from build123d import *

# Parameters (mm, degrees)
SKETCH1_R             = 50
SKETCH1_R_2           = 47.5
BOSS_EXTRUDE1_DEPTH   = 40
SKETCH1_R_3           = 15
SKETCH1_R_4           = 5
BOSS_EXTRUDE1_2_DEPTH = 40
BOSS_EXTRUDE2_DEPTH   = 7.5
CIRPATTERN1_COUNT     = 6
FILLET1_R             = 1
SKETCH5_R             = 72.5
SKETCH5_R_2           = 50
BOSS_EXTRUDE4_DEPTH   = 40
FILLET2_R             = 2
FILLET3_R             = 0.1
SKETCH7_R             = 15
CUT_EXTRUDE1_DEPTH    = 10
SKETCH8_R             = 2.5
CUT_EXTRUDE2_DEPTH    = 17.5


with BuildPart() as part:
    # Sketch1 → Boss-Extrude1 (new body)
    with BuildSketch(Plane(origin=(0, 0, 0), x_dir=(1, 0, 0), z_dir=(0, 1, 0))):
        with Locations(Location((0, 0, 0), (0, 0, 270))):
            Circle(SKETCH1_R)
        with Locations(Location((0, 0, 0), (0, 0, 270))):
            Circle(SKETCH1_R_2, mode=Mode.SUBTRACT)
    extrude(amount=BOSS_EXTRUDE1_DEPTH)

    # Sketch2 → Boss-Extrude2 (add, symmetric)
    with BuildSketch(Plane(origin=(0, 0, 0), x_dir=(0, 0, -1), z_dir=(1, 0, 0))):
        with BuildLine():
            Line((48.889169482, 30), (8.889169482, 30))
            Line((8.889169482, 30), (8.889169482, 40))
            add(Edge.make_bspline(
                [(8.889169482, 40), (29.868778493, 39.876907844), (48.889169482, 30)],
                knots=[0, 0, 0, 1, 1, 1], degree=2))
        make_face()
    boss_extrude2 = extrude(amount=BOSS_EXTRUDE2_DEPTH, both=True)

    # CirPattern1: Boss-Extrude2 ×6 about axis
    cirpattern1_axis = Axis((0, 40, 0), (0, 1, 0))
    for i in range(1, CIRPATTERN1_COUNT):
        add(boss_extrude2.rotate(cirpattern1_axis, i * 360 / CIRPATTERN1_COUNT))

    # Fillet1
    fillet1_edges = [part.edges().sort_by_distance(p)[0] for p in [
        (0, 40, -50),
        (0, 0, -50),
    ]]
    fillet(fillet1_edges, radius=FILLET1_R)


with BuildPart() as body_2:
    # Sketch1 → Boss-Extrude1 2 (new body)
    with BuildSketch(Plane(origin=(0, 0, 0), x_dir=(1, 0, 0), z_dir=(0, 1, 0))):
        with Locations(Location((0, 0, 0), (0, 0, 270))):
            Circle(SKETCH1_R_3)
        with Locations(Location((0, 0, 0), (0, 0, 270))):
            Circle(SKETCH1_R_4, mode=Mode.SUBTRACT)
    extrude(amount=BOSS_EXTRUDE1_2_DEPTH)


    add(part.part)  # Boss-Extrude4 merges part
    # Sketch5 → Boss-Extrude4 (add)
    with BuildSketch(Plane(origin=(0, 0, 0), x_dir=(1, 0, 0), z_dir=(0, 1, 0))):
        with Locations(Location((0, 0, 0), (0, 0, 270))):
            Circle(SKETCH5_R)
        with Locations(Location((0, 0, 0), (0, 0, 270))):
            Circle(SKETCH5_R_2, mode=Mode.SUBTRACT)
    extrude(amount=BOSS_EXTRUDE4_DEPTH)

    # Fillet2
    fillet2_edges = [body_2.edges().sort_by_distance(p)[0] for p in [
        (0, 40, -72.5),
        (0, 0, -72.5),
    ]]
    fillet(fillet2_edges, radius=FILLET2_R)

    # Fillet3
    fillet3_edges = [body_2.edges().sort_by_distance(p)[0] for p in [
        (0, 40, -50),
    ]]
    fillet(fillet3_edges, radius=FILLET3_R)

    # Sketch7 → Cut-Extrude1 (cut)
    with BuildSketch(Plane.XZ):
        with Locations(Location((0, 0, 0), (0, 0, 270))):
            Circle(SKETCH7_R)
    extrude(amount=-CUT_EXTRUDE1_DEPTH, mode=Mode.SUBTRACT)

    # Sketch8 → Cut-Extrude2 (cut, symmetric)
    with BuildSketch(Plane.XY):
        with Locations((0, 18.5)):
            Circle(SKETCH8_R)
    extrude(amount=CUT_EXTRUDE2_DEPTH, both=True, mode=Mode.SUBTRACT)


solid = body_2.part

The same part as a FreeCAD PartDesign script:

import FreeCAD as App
import Part
import Sketcher


def edges_at(feature, points):
    """Names of the edges that pass closest to the given points."""
    edges = feature.Shape.Edges
    near = lambda p: min(range(len(edges)), key=lambda i: edges[i].distToShape(Part.Vertex(*p))[0])
    return sorted({f"Edge{near(p) + 1}" for p in points})

doc = App.newDocument("Part")
body = doc.addObject("PartDesign::Body", "Body")

# Sketch on XZ plane
sketch1 = doc.addObject("Sketcher::SketchObject", "Sketch")
body.addObject(sketch1)
sketch1.AttachmentSupport = (doc.XZ_Plane, [""])
sketch1.MapMode = "FlatFace"
sketch1.addGeometry([
    Part.Circle(App.Vector(0, 0, 0), App.Vector(0, 0, 1), 50),
    Part.Circle(App.Vector(0, 0, 0), App.Vector(0, 0, 1), 48),
], False)
sketch1.addConstraint([
    Sketcher.Constraint("Coincident", 0, 3, -1, 1),
    Sketcher.Constraint("Coincident", 1, 3, -1, 1),
    Sketcher.Constraint("Diameter", 0, 100.0),
    Sketcher.Constraint("Diameter", 1, 95.0),
])
pad1 = doc.addObject("PartDesign::Pad", "Pad")
body.addObject(pad1)
pad1.Profile = sketch1
pad1.Length = 40
pad1.Reversed = True

# Sketch on YZ plane
sketch2 = doc.addObject("Sketcher::SketchObject", "Sketch001")
body.addObject(sketch2)
sketch2.AttachmentSupport = (doc.YZ_Plane, [""])
sketch2.MapMode = "FlatFace"
sketch2.addGeometry([
    Part.LineSegment(App.Vector(30, -8.889169, 0), App.Vector(30, -48.889169, 0)),
    Part.BSplineCurve([App.Vector(40, -8.889169, 0), App.Vector(39.876908, -29.868778, 0), App.Vector(30, -48.889169, 0)], [3, 3], [0, 1], False, 2, [1, 1, 1], False),
    Part.LineSegment(App.Vector(40, -8.889169, 0), App.Vector(30, -8.889169, 0)),
], False)
sketch2.addConstraint([
    Sketcher.Constraint("Block", 1),
    Sketcher.Constraint("Coincident", 0, 2, 1, 2),
    Sketcher.Constraint("Coincident", 1, 1, 2, 1),
    Sketcher.Constraint("Coincident", 2, 2, 0, 1),
    Sketcher.Constraint("Vertical", 0),
    Sketcher.Constraint("Horizontal", 2),
])
pad2 = doc.addObject("PartDesign::Pad", "Pad001")
body.addObject(pad2)
pad2.Profile = sketch2
pad2.Length = 15
pad2.Midplane = True
doc.recompute()

polarpattern = doc.addObject("PartDesign::PolarPattern", "PolarPattern")
body.addObject(polarpattern)
polarpattern.Originals = [pad2]
polarpattern.Axis = (doc.Y_Axis, [""])
polarpattern.Angle = 360
polarpattern.Occurrences = 6
body.Tip = polarpattern
doc.recompute()

fillet = doc.addObject("PartDesign::Fillet", "Fillet")
body.addObject(fillet)
fillet.Base = (polarpattern, edges_at(polarpattern, [(0, 40, -50), (0, 0, -50)]))
fillet.Radius = 1
body2 = doc.addObject("PartDesign::Body", "Body001")

# Sketch on XZ plane
sketch3 = doc.addObject("Sketcher::SketchObject", "Sketch002")
body2.addObject(sketch3)
sketch3.AttachmentSupport = (doc.getObject("XZ_Plane001"), [""])
sketch3.MapMode = "FlatFace"
sketch3.addGeometry([
    Part.Circle(App.Vector(0, 0, 0), App.Vector(0, 0, 1), 15),
    Part.Circle(App.Vector(0, 0, 0), App.Vector(0, 0, 1), 5),
], False)
sketch3.addConstraint([
    Sketcher.Constraint("Coincident", 0, 3, -1, 1),
    Sketcher.Constraint("Coincident", 1, 3, -1, 1),
    Sketcher.Constraint("Diameter", 0, 30.0),
    Sketcher.Constraint("Diameter", 1, 10.0),
])
pad3 = doc.addObject("PartDesign::Pad", "Pad002")
body2.addObject(pad3)
pad3.Profile = sketch3
pad3.Length = 40
pad3.Reversed = True
doc.recompute()

boolean = doc.addObject("PartDesign::Boolean", "Boolean")
body2.addObject(boolean)
boolean.Type = "Fuse"
boolean.addObjects([body])

# Sketch on XZ plane
sketch4 = doc.addObject("Sketcher::SketchObject", "Sketch003")
body2.addObject(sketch4)
sketch4.AttachmentSupport = (doc.getObject("XZ_Plane001"), [""])
sketch4.MapMode = "FlatFace"
sketch4.addGeometry([
    Part.Circle(App.Vector(0, 0, 0), App.Vector(0, 0, 1), 72),
    Part.Circle(App.Vector(0, 0, 0), App.Vector(0, 0, 1), 50),
], False)
sketch4.addConstraint([
    Sketcher.Constraint("Coincident", 0, 3, -1, 1),
    Sketcher.Constraint("Coincident", 1, 3, -1, 1),
    Sketcher.Constraint("Diameter", 0, 145.0),
    Sketcher.Constraint("Diameter", 1, 100.0),
])
pad4 = doc.addObject("PartDesign::Pad", "Pad003")
body2.addObject(pad4)
pad4.Profile = sketch4
pad4.Length = 40
pad4.Reversed = True
doc.recompute()

fillet2 = doc.addObject("PartDesign::Fillet", "Fillet001")
body2.addObject(fillet2)
fillet2.Base = (pad4, edges_at(pad4, [(0, 40, -72.5), (0, 0, -72.5)]))
fillet2.Radius = 2
doc.recompute()

fillet3 = doc.addObject("PartDesign::Fillet", "Fillet002")
body2.addObject(fillet3)
fillet3.Base = (fillet2, edges_at(fillet2, [(0, 40, -50)]))
fillet3.Radius = 0.1

# Sketch on XZ plane
sketch5 = doc.addObject("Sketcher::SketchObject", "Sketch004")
body2.addObject(sketch5)
sketch5.AttachmentSupport = (doc.getObject("XZ_Plane001"), [""])
sketch5.MapMode = "FlatFace"
sketch5.addGeometry(Part.Circle(App.Vector(0, 0, 0), App.Vector(0, 0, 1), 15), False)
sketch5.addConstraint([
    Sketcher.Constraint("Coincident", 0, 3, -1, 1),
    Sketcher.Constraint("Diameter", 0, 30.0),
])
pocket1 = doc.addObject("PartDesign::Pocket", "Pocket")
body2.addObject(pocket1)
pocket1.Profile = sketch5
pocket1.Length = 10

# Sketch on XY plane
sketch6 = doc.addObject("Sketcher::SketchObject", "Sketch005")
body2.addObject(sketch6)
sketch6.AttachmentSupport = (doc.getObject("XY_Plane001"), [""])
sketch6.MapMode = "FlatFace"
sketch6.addGeometry(Part.Circle(App.Vector(0, 18.5, 0), App.Vector(0, 0, 1), 2.5), False)
sketch6.addConstraint([
    Sketcher.Constraint("PointOnObject", 0, 3, -2),
    Sketcher.Constraint("Diameter", 0, 5.0),
    Sketcher.Constraint("DistanceY", -1, 1, 0, 3, 18.5),
])
pocket2 = doc.addObject("PartDesign::Pocket", "Pocket001")
body2.addObject(pocket2)
pocket2.Profile = sketch6
pocket2.Length = 35
pocket2.Midplane = True

doc.recompute()
